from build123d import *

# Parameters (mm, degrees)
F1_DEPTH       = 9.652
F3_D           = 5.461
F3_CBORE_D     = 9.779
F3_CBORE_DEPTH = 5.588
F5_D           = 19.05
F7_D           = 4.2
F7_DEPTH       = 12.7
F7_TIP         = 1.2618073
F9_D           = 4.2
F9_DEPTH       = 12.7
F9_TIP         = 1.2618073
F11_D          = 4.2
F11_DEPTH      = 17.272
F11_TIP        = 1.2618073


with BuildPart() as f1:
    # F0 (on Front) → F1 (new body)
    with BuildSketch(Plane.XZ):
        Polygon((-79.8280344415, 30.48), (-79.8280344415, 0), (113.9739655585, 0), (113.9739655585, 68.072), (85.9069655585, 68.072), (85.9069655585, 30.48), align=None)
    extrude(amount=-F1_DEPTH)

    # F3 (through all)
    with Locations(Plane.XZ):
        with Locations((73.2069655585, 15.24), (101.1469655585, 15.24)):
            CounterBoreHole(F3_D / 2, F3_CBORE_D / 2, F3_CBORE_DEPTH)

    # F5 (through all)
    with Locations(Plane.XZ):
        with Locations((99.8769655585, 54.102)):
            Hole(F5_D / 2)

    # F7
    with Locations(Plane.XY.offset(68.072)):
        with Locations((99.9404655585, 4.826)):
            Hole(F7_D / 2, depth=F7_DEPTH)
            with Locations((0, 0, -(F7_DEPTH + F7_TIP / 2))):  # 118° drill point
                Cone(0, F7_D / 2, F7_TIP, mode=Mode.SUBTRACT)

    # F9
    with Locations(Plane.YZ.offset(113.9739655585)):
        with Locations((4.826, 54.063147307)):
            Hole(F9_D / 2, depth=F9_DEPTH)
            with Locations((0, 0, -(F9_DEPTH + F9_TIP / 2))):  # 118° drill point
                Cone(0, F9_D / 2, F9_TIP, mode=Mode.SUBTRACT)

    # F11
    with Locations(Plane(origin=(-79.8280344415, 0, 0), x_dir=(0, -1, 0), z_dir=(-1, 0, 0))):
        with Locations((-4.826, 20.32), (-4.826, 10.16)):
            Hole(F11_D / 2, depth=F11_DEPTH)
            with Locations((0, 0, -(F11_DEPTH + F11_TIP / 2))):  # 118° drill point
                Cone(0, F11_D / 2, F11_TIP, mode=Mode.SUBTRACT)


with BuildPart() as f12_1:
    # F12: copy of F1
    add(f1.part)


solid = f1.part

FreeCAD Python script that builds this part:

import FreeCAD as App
import Part
import Sketcher
Q = App.Units.Quantity


def add_polygon(sketch, points):
    """Adds a closed chain of lines whose ends are joined by coincident constraints."""
    first, n = sketch.GeometryCount, len(points)
    for a, b in zip(points, points[1:] + points[:1]):
        sketch.addGeometry(Part.LineSegment(App.Vector(*a, 0), App.Vector(*b, 0)), False)
    for i in range(n):
        sketch.addConstraint(Sketcher.Constraint("Coincident", first + i, 2, first + (i + 1) % n, 1))

doc = App.newDocument("Part")
body = doc.addObject("PartDesign::Body", "Body")

sketch1 = doc.addObject("Sketcher::SketchObject", "Sketch")
body.addObject(sketch1)
sketch1.AttachmentSupport = (doc.XZ_Plane, [""])
sketch1.MapMode = "FlatFace"
add_polygon(sketch1, [(-79.828034, 30.48), (-79.828034, 0), (113.973966, 0), (113.973966, 68.072), (85.906966, 68.072), (85.906966, 30.48)])
sketch1.addConstraint([
    Sketcher.Constraint("Vertical", 0),
    Sketcher.Constraint("Horizontal", 1),
    Sketcher.Constraint("Vertical", 2),
    Sketcher.Constraint("Horizontal", 3),
    Sketcher.Constraint("Vertical", 4),
    Sketcher.Constraint("Horizontal", 5),
    Sketcher.Constraint("PointOnObject", 0, 2, -1),
    Sketcher.Constraint("DistanceY", 0, 2, 0, 1, Q("1.2 in")),
    Sketcher.Constraint("DistanceX", 1, 1, 1, 2, Q("7.63 in")),
    Sketcher.Constraint("DistanceY", 2, 1, 2, 2, Q("2.68 in")),
    Sketcher.Constraint("DistanceX", 3, 2, 3, 1, Q("1.105 in")),
    Sketcher.Constraint("DistanceX", 0, 2, -1, 1, 79.828034),
])
pad1 = doc.addObject("PartDesign::Pad", "Pad")
body.addObject(pad1)
pad1.Profile = sketch1
pad1.Length = Q("0.38 in")
pad1.Reversed = True

sketch2 = doc.addObject("Sketcher::SketchObject", "Sketch001")
body.addObject(sketch2)
sketch2.AttachmentSupport = (doc.XZ_Plane, [""])
sketch2.MapMode = "FlatFace"
sketch2.addGeometry([
    Part.Circle(App.Vector(73.206966, 15.24, 0), App.Vector(0, 0, 1), 2.7305),
    Part.Circle(App.Vector(101.146966, 15.24, 0), App.Vector(0, 0, 1), 2.7305),
], False)
sketch2.addConstraint([
    Sketcher.Constraint("Equal", 0, 1),
    Sketcher.Constraint("Horizontal", 0, 3, 1, 3),
    Sketcher.Constraint("Diameter", 0, Q("0.215 in")),
    Sketcher.Constraint("DistanceY", -1, 1, 0, 3, Q("0.6 in")),
    Sketcher.Constraint("DistanceX", 0, 3, 1, 3, Q("1.1 in")),
    Sketcher.Constraint("DistanceX", -1, 1, 0, 3, 73.206966),
])
doc.recompute()
hole = doc.addObject("PartDesign::Hole", "Hole")
body.addObject(hole)
hole.Profile = sketch2
hole.ThreadType = "None"
hole.Diameter = Q("0.215 in")
hole.DepthType = "ThroughAll"
hole.HoleCutType = "Counterbore"
hole.HoleCutDiameter = Q("0.385 in")
hole.HoleCutDepth = Q("0.22 in")

sketch3 = doc.addObject("Sketcher::SketchObject", "Sketch002")
body.addObject(sketch3)
sketch3.AttachmentSupport = (doc.XZ_Plane, [""])
sketch3.MapMode = "FlatFace"
sketch3.addGeometry(Part.Circle(App.Vector(99.876966, 54.102, 0), App.Vector(0, 0, 1), 9.525), False)
sketch3.addConstraint([
    Sketcher.Constraint("Diameter", 0, Q("0.75 in")),
    Sketcher.Constraint("DistanceY", -1, 1, 0, 3, Q("2.13 in")),
    Sketcher.Constraint("DistanceX", -1, 1, 0, 3, 99.876966),
])
doc.recompute()
hole2 = doc.addObject("PartDesign::Hole", "Hole001")
body.addObject(hole2)
hole2.Profile = sketch3
hole2.ThreadType = "None"
hole2.Diameter = Q("0.75 in")
hole2.DepthType = "ThroughAll"

sketch4 = doc.addObject("Sketcher::SketchObject", "Sketch003")
body.addObject(sketch4)
sketch4.AttachmentSupport = (doc.XY_Plane, [""])
sketch4.MapMode = "FlatFace"
sketch4.AttachmentOffset = App.Placement(App.Vector(0, 0, 2.68 * 25.4), App.Rotation())
sketch4.addGeometry(Part.Circle(App.Vector(99.940466, 4.826, 0), App.Vector(0, 0, 1), 2.1), False)
sketch4.addConstraint([
    Sketcher.Constraint("Diameter", 0, 4.2),
    Sketcher.Constraint("DistanceY", -1, 1, 0, 3, Q("0.19 in")),
    Sketcher.Constraint("DistanceX", -1, 1, 0, 3, 99.940466),
])
doc.recompute()
hole3 = doc.addObject("PartDesign::Hole", "Hole002")
body.addObject(hole3)
hole3.Profile = sketch4
hole3.ThreadType = "None"
hole3.Diameter = 4.2
hole3.DepthType = "Dimension"
hole3.Depth = Q("0.5 in")
hole3.DrillPoint = "Angled"
hole3.DrillPointAngle = 118

sketch5 = doc.addObject("Sketcher::SketchObject", "Sketch004")
body.addObject(sketch5)
sketch5.AttachmentSupport = (doc.YZ_Plane, [""])
sketch5.MapMode = "FlatFace"
sketch5.AttachmentOffset = App.Placement(App.Vector(0, 0, 113.973966), App.Rotation())
sketch5.addGeometry(Part.Circle(App.Vector(4.826, 54.063147, 0), App.Vector(0, 0, 1), 2.1), False)
sketch5.addConstraint([
    Sketcher.Constraint("Diameter", 0, 4.2),
    Sketcher.Constraint("DistanceX", -1, 1, 0, 3, Q("0.19 in")),
    Sketcher.Constraint("DistanceY", -1, 1, 0, 3, 54.063147),
])
doc.recompute()
hole4 = doc.addObject("PartDesign::Hole", "Hole003")
body.addObject(hole4)
hole4.Profile = sketch5
hole4.ThreadType = "None"
hole4.Diameter = 4.2
hole4.DepthType = "Dimension"
hole4.Depth = Q("0.5 in")
hole4.DrillPoint = "Angled"
hole4.DrillPointAngle = 118

sketch6 = doc.addObject("Sketcher::SketchObject", "Sketch005")
body.addObject(sketch6)
sketch6.AttachmentSupport = (doc.YZ_Plane, [""])
sketch6.MapMode = "FlatFace"
sketch6.AttachmentOffset = App.Placement(App.Vector(0, 0, -79.828034), App.Rotation())
sketch6.addGeometry([
    Part.Circle(App.Vector(4.826, 20.32, 0), App.Vector(0, 0, 1), 2.1),
    Part.Circle(App.Vector(4.826, 10.16, 0), App.Vector(0, 0, 1), 2.1),
], False)
sketch6.addConstraint([
    Sketcher.Constraint("Equal", 0, 1),
    Sketcher.Constraint("Vertical", 0, 3, 1, 3),
    Sketcher.Constraint("DistanceY", -1, 1, 0, 3, Q("0.8 in")),
    Sketcher.Constraint("DistanceY", -1, 1, 1, 3, Q("0.4 in")),
    Sketcher.Constraint("Diameter", 0, 4.2),
    Sketcher.Constraint("DistanceX", -1, 1, 0, 3, Q("0.19 in")),
])
doc.recompute()
hole5 = doc.addObject("PartDesign::Hole", "Hole004")
body.addObject(hole5)
hole5.Profile = sketch6
hole5.ThreadType = "None"
hole5.Diameter = 4.2
hole5.DepthType = "Dimension"
hole5.Depth = Q("0.68 in")
hole5.DrillPoint = "Angled"
hole5.DrillPointAngle = 118
hole5.Reversed = True
body2 = doc.addObject("PartDesign::Body", "Body001")
doc.recompute()

body2.BaseFeature = body
doc.recompute()
body.Visibility = False

doc.recompute()
